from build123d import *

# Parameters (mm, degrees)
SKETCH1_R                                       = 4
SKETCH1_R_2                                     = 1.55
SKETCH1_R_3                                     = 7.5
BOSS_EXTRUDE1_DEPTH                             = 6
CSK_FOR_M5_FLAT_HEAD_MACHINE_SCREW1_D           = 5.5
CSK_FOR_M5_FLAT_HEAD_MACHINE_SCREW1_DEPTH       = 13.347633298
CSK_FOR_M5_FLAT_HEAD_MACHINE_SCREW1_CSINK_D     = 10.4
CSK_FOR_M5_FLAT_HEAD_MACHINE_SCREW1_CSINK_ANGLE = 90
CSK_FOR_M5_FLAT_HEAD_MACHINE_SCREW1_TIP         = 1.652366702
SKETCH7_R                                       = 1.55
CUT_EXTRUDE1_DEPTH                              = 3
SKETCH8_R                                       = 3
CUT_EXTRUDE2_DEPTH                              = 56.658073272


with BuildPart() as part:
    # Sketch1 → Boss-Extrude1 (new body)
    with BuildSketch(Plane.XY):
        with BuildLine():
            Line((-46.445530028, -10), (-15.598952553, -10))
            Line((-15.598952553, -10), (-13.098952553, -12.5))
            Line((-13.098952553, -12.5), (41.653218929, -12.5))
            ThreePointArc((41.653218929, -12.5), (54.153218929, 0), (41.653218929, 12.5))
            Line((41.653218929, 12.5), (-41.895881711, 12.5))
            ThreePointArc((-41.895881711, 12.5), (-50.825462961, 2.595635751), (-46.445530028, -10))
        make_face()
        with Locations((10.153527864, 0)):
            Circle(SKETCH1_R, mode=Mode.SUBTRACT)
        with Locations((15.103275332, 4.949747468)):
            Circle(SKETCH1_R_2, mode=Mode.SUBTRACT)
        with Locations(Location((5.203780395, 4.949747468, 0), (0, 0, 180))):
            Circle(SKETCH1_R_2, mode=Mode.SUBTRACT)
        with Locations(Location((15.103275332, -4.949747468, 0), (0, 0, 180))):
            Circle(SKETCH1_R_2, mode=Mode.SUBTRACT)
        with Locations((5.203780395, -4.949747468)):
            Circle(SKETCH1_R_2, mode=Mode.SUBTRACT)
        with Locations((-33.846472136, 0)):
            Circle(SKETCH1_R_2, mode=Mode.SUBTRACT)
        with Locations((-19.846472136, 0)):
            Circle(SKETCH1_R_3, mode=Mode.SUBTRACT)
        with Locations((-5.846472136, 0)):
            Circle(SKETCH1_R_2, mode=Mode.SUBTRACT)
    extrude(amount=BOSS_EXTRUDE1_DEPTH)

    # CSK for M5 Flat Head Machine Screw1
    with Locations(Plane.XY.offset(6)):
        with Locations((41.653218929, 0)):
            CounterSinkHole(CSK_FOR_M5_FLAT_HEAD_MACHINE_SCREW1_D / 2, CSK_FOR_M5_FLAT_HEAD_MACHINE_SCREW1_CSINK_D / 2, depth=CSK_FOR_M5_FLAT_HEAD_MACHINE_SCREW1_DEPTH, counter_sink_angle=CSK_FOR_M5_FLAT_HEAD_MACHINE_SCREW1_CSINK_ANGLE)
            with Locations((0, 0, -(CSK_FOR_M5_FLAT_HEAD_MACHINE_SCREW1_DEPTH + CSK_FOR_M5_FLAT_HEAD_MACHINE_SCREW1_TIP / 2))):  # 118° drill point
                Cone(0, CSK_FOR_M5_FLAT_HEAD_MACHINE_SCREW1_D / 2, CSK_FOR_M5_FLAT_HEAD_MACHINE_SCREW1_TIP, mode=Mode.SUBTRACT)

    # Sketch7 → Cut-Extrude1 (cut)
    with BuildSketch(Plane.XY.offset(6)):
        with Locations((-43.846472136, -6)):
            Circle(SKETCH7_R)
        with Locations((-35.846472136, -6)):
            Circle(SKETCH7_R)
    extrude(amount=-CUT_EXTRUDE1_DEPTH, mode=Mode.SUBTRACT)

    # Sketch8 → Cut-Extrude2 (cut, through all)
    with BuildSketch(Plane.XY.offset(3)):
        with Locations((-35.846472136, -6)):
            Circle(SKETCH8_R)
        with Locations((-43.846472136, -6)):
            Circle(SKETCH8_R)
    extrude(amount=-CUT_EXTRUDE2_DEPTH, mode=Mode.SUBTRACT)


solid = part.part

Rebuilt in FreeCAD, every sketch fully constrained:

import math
import FreeCAD as App
import Part
import Sketcher
Q = App.Units.Quantity

doc = App.newDocument("Part")
body = doc.addObject("PartDesign::Body", "Body")

# Sketch on XY plane
sketch1 = body.newObject("Sketcher::SketchObject", "Sketch")
sketch1.AttachmentSupport = (doc.getObject("XY_Plane"), [""])
sketch1.MapMode = "FlatFace"
sketch1.addGeometry([
    Part.LineSegment(App.Vector(-46.44553, -10, 0), App.Vector(-15.598953, -10, 0)),  # 0
    Part.LineSegment(App.Vector(-15.598953, -10, 0), App.Vector(-13.098953, -12.5, 0)),  # 1
    Part.LineSegment(App.Vector(-13.098953, -12.5, 0), App.Vector(41.653219, -12.5, 0)),  # 2
    Part.ArcOfCircle(Part.Circle(App.Vector(41.653219, 0, 0), App.Vector(0, 0, 1), 12.5), math.radians(-90), math.radians(90)),  # 3
    Part.LineSegment(App.Vector(41.653219, 12.5, 0), App.Vector(-41.895882, 12.5, 0)),  # 4
    Part.ArcOfCircle(Part.Circle(App.Vector(-37.988909, 0, 0), App.Vector(0, 0, 1), 13.096352), math.radians(107.357041), math.radians(229.780066)),  # 5
    Part.Circle(App.Vector(5.20378, -4.949747, 0), App.Vector(0, 0, 1), 1.55),  # 6
    Part.Circle(App.Vector(15.103275, -4.949747, 0), App.Vector(0, 0, 1), 1.55),  # 7
    Part.Circle(App.Vector(-33.846472, 0, 0), App.Vector(0, 0, 1), 1.55),  # 8
    Part.Circle(App.Vector(-19.846472, 0, 0), App.Vector(0, 0, 1), 7.5),  # 9
    Part.Circle(App.Vector(-5.846472, 0, 0), App.Vector(0, 0, 1), 1.55),  # 10
    Part.Circle(App.Vector(10.153528, 0, 0), App.Vector(0, 0, 1), 4),  # 11
    Part.Circle(App.Vector(5.20378, 4.949747, 0), App.Vector(0, 0, 1), 1.55),  # 12
    Part.Circle(App.Vector(15.103275, 4.949747, 0), App.Vector(0, 0, 1), 1.55),  # 13
], False)
sketch1.addConstraint([
    Sketcher.Constraint("Coincident", 0, 2, 1, 1),
    Sketcher.Constraint("Coincident", 1, 2, 2, 1),
    Sketcher.Constraint("Tangent", 2, 2, 3, 1),
    Sketcher.Constraint("Tangent", 3, 2, 4, 1),
    Sketcher.Constraint("Coincident", 4, 2, 5, 1),
    Sketcher.Constraint("Coincident", 5, 2, 0, 1),
    Sketcher.Constraint("Horizontal", 0),
    Sketcher.Constraint("Horizontal", 2),
    Sketcher.Constraint("Horizontal", 4),
    Sketcher.Constraint("Equal", 6, 7),
    Sketcher.Constraint("Equal", 7, 8),
    Sketcher.Constraint("Equal", 8, 10),
    Sketcher.Constraint("Equal", 10, 12),
    Sketcher.Constraint("Equal", 12, 13),
    Sketcher.Constraint("Symmetric", 6, 3, 12, 3, -1),
    Sketcher.Constraint("Symmetric", 7, 3, 13, 3, -1),
    Sketcher.Constraint("PointOnObject", 3, 3, -1),
    Sketcher.Constraint("PointOnObject", 5, 3, -1),
    Sketcher.Constraint("PointOnObject", 8, 3, -1),
    Sketcher.Constraint("PointOnObject", 9, 3, -1),
    Sketcher.Constraint("PointOnObject", 10, 3, -1),
    Sketcher.Constraint("PointOnObject", 11, 3, -1),
    Sketcher.Constraint("Horizontal", 6, 3, 7, 3),
    Sketcher.Constraint("Diameter", 9, Q("15 mm")),
    Sketcher.Constraint("Diameter", 11, Q("8 mm")),
    Sketcher.Constraint("Diameter", 6, Q("3.1 mm")),
    Sketcher.Constraint("Radius", 3, Q("12.5 mm")),
    Sketcher.Constraint("Angle", 1, Q("-45 deg")),
    Sketcher.Constraint("DistanceY", 0, 2, -1, 1, Q("10 mm")),
    Sketcher.Constraint("DistanceX", 8, 3, 9, 3, Q("14 mm")),
    Sketcher.Constraint("DistanceX", 9, 3, 10, 3, Q("14 mm")),
    Sketcher.Constraint("DistanceX", 10, 3, 11, 3, Q("16 mm")),
    Sketcher.Constraint("Radius", 5, Q("13.096352 mm")),
    Sketcher.Constraint("DistanceX", 4, 2, 4, 1, Q("83.549101 mm")),
    Sketcher.Constraint("DistanceX", 2, 1, 2, 2, Q("54.752171 mm")),
    Sketcher.Constraint("DistanceX", -1, 1, 3, 3, Q("41.653219 mm")),
    Sketcher.Constraint("DistanceX", -1, 1, 6, 3, Q("5.20378 mm")),
    Sketcher.Constraint("DistanceX", 8, 3, 3, 3, Q("75.499691 mm")),
    Sketcher.Constraint("DistanceY", 6, 3, -1, 1, Q("4.949747 mm")),
    Sketcher.Constraint("DistanceX", -1, 1, 7, 3, Q("15.103275 mm")),
])
pad1 = body.newObject("PartDesign::Pad", "Pad")
pad1.Profile = sketch1
pad1.Length = 6

# Sketch on XY plane
sketch2 = body.newObject("Sketcher::SketchObject", "Sketch001")
sketch2.AttachmentSupport = (doc.getObject("XY_Plane"), [""])
sketch2.MapMode = "FlatFace"
sketch2.AttachmentOffset = App.Placement(App.Vector(0, 0, 6), App.Rotation())
sketch2.addGeometry(Part.Circle(App.Vector(41.653219, 0, 0), App.Vector(0, 0, 1), 2.75), False)
sketch2.addConstraint([
    Sketcher.Constraint("PointOnObject", 0, 3, -1),
    Sketcher.Constraint("Diameter", 0, Q("5.5 mm")),
    Sketcher.Constraint("DistanceX", -1, 1, 0, 3, Q("41.653219 mm")),
])
doc.recompute()
hole = body.newObject("PartDesign::Hole", "Hole")
hole.Profile = sketch2
hole.ThreadType = "None"
hole.Diameter = 5.5
hole.DepthType = "Dimension"
hole.Depth = 13.347633
hole.DrillPoint = "Angled"
hole.DrillPointAngle = 118
hole.HoleCutType = "Countersink"
hole.HoleCutDiameter = 10.4
hole.HoleCutCountersinkAngle = 90

# Sketch on XY plane
sketch3 = body.newObject("Sketcher::SketchObject", "Sketch002")
sketch3.AttachmentSupport = (doc.getObject("XY_Plane"), [""])
sketch3.MapMode = "FlatFace"
sketch3.AttachmentOffset = App.Placement(App.Vector(0, 0, 6), App.Rotation())
sketch3.addGeometry([
    Part.Circle(App.Vector(-43.846472, -6, 0), App.Vector(0, 0, 1), 1.55),
    Part.Circle(App.Vector(-35.846472, -6, 0), App.Vector(0, 0, 1), 1.55),
], False)
sketch3.addConstraint([
    Sketcher.Constraint("Equal", 0, 1),
    Sketcher.Constraint("Horizontal", 0, 3, 1, 3),
    Sketcher.Constraint("Diameter", 0, Q("3.1 mm")),
    Sketcher.Constraint("DistanceY", 0, 3, -1, 1, Q("6 mm")),
    Sketcher.Constraint("DistanceX", 0, 3, 1, 3, Q("8 mm")),
    Sketcher.Constraint("DistanceX", 0, 3, -1, 1, Q("43.846472 mm")),
])
pocket1 = body.newObject("PartDesign::Pocket", "Pocket")
pocket1.Profile = sketch3
pocket1.Length = 3

# Sketch on XY plane
sketch4 = body.newObject("Sketcher::SketchObject", "Sketch003")
sketch4.AttachmentSupport = (doc.getObject("XY_Plane"), [""])
sketch4.MapMode = "FlatFace"
sketch4.AttachmentOffset = App.Placement(App.Vector(0, 0, 3), App.Rotation())
sketch4.addGeometry([
    Part.Circle(App.Vector(-35.846472, -6, 0), App.Vector(0, 0, 1), 3),
    Part.Circle(App.Vector(-43.846472, -6, 0), App.Vector(0, 0, 1), 3),
], False)
sketch4.addConstraint([
    Sketcher.Constraint("Equal", 0, 1),
    Sketcher.Constraint("Horizontal", 0, 3, 1, 3),
    Sketcher.Constraint("Diameter", 0, Q("6 mm")),
    Sketcher.Constraint("DistanceY", 0, 3, -1, 1, Q("6 mm")),
    Sketcher.Constraint("DistanceX", 1, 3, 0, 3, Q("8 mm")),
    Sketcher.Constraint("DistanceX", 0, 3, -1, 1, Q("35.846472 mm")),
])
pocket2 = body.newObject("PartDesign::Pocket", "Pocket001")
pocket2.Profile = sketch4
pocket2.Type = "ThroughAll"

doc.recompute()
